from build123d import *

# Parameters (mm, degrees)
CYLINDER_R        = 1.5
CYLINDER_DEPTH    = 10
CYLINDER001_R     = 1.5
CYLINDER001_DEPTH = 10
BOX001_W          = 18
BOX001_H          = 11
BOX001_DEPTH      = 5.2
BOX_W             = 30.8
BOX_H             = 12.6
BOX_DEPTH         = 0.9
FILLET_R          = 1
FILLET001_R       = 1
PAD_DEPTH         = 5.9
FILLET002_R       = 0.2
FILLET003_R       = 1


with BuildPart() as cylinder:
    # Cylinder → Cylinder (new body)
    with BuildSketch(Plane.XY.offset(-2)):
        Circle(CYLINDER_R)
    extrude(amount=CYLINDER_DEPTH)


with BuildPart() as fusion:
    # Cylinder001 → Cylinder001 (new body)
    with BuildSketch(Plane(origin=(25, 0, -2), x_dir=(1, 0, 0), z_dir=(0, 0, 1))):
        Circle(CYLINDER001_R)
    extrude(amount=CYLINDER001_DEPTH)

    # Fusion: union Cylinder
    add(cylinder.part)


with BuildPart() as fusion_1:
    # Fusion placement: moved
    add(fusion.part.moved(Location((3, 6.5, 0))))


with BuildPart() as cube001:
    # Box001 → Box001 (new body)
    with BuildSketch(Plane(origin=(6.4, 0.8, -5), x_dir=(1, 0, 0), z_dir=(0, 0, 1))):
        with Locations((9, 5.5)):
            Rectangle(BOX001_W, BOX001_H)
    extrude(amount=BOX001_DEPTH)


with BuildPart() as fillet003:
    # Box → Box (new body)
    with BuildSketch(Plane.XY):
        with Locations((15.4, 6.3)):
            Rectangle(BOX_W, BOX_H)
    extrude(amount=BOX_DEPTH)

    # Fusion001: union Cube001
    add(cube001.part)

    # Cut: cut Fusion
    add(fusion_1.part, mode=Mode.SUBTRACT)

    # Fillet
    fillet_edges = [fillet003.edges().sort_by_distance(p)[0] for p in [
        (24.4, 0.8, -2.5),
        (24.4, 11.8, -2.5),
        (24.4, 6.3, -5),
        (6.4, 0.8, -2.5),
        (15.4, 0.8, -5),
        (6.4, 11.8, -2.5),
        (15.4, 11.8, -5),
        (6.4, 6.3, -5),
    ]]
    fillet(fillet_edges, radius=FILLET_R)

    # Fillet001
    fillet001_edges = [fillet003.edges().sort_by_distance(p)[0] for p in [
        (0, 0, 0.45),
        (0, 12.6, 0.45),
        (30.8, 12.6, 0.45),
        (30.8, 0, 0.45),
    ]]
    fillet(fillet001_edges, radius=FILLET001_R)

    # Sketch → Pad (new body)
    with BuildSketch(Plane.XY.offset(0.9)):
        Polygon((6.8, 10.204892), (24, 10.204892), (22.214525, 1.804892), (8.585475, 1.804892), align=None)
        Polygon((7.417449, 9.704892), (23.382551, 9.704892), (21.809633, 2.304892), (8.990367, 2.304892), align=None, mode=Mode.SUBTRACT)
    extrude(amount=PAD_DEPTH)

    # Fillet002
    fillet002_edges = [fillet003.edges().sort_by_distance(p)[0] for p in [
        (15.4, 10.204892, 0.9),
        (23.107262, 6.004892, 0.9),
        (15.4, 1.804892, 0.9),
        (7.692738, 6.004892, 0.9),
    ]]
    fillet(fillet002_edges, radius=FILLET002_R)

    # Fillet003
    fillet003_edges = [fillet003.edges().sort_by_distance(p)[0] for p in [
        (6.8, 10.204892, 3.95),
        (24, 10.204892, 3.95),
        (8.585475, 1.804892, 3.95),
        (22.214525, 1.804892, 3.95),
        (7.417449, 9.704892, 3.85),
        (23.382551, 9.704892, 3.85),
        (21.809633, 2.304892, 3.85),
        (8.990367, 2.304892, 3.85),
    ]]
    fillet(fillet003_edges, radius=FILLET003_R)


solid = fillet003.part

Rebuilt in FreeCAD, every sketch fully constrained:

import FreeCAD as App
import Part
import Sketcher

V = App.Vector
Q = App.Units.Quantity


def edges_at(feature, points):
    """Names of the edges that pass closest to the given points."""
    edges = feature.Shape.Edges
    near = lambda p: min(range(len(edges)), key=lambda i: edges[i].distToShape(Part.Vertex(*p))[0])
    return sorted({f"Edge{near(p) + 1}" for p in points})


def add_polygon(sketch, points):
    """Adds a closed chain of lines whose ends are joined by coincident constraints."""
    first, n = sketch.GeometryCount, len(points)
    for a, b in zip(points, points[1:] + points[:1]):
        sketch.addGeometry(Part.LineSegment(App.Vector(*a, 0), App.Vector(*b, 0)), False)
    for i in range(n):
        sketch.addConstraint(Sketcher.Constraint("Coincident", first + i, 2, first + (i + 1) % n, 1))

doc = App.newDocument("Part")
body = doc.addObject("PartDesign::Body", "Body")

sketch1 = body.newObject("Sketcher::SketchObject", "Sketch")
sketch1.AttachmentSupport = (doc.getObject("XY_Plane"), [""])
sketch1.MapMode = "FlatFace"
sketch1.AttachmentOffset = App.Placement(V(0, 0, -2), App.Rotation())
sketch1.addGeometry(Part.Circle(V(0, 0, 0), V(0, 0, 1), 1.5), False)
sketch1.addConstraint(Sketcher.Constraint("Coincident", 0, 3, -1, 1))
sketch1.addConstraint(Sketcher.Constraint("Diameter", 0, Q("3 mm")))
pad1 = body.newObject("PartDesign::Pad", "Pad")
pad1.Profile = sketch1
pad1.Length = 10
body2 = doc.addObject("PartDesign::Body", "Body001")
body2.AllowCompound = True

sketch2 = body2.newObject("Sketcher::SketchObject", "Sketch001")
sketch2.AttachmentSupport = (doc.getObject("XY_Plane001"), [""])
sketch2.MapMode = "FlatFace"
sketch2.AttachmentOffset = App.Placement(V(0, 0, -2), App.Rotation())
sketch2.addGeometry(Part.Circle(V(25, 0, 0), V(0, 0, 1), 1.5), False)
sketch2.addConstraint(Sketcher.Constraint("PointOnObject", 0, 3, -1))
sketch2.addConstraint(Sketcher.Constraint("Diameter", 0, Q("3 mm")))
sketch2.addConstraint(Sketcher.Constraint("DistanceX", -1, 1, 0, 3, Q("25 mm")))
pad2 = body2.newObject("PartDesign::Pad", "Pad001")
pad2.Profile = sketch2
pad2.Length = 10
doc.recompute()

boolean = body2.newObject("PartDesign::Boolean", "Boolean")
boolean.Type = "Fuse"
boolean.addObjects([body])
body3 = doc.addObject("PartDesign::Body", "Body002")
body3.AllowCompound = True
doc.recompute()

body2.Placement = App.Placement(V(3, 6.5, 0), App.Rotation(V(0, 0, 1), 0))
boolean2 = body3.newObject("PartDesign::Boolean", "Boolean001")
boolean2.Type = "Fuse"
boolean2.addObjects([body2])
body4 = doc.addObject("PartDesign::Body", "Body003")

sketch3 = body4.newObject("Sketcher::SketchObject", "Sketch002")
sketch3.AttachmentSupport = (doc.getObject("XY_Plane003"), [""])
sketch3.MapMode = "FlatFace"
sketch3.AttachmentOffset = App.Placement(V(0, 0, -5), App.Rotation())
add_polygon(sketch3, [(6, 12), (6, 1), (24, 1), (24, 12)])
sketch3.addConstraint(Sketcher.Constraint("Vertical", 0))
sketch3.addConstraint(Sketcher.Constraint("Horizontal", 1))
sketch3.addConstraint(Sketcher.Constraint("Vertical", 2))
sketch3.addConstraint(Sketcher.Constraint("Horizontal", 3))
sketch3.addConstraint(Sketcher.Constraint("DistanceX", 1, 1, 1, 2, Q("18 mm")))
sketch3.addConstraint(Sketcher.Constraint("DistanceY", 0, 2, 0, 1, Q("11 mm")))
sketch3.addConstraint(Sketcher.Constraint("DistanceX", -1, 1, 0, 2, Q("6.4 mm")))
sketch3.addConstraint(Sketcher.Constraint("DistanceY", -1, 1, 0, 2, Q("0.8 mm")))
pad3 = body4.newObject("PartDesign::Pad", "Pad002")
pad3.Profile = sketch3
pad3.Length = 5.2
body5 = doc.addObject("PartDesign::Body", "Body004")

sketch4 = body5.newObject("Sketcher::SketchObject", "Sketch003")
sketch4.AttachmentSupport = (doc.getObject("XY_Plane004"), [""])
sketch4.MapMode = "FlatFace"
add_polygon(sketch4, [(0, 13), (0, 0), (31, 0), (31, 13)])
sketch4.addConstraint(Sketcher.Constraint("Vertical", 0))
sketch4.addConstraint(Sketcher.Constraint("Horizontal", 1))
sketch4.addConstraint(Sketcher.Constraint("Vertical", 2))
sketch4.addConstraint(Sketcher.Constraint("Horizontal", 3))
sketch4.addConstraint(Sketcher.Constraint("Coincident", 0, 2, -1, 1))
sketch4.addConstraint(Sketcher.Constraint("DistanceX", 1, 1, 1, 2, Q("30.8 mm")))
sketch4.addConstraint(Sketcher.Constraint("DistanceY", 0, 2, 0, 1, Q("12.6 mm")))
pad4 = body5.newObject("PartDesign::Pad", "Pad003")
pad4.Profile = sketch4
pad4.Length = 0.9
doc.recompute()

boolean3 = body5.newObject("PartDesign::Boolean", "Boolean002")
boolean3.Type = "Fuse"
boolean3.addObjects([body4])
doc.recompute()

boolean4 = body5.newObject("PartDesign::Boolean", "Boolean003")
boolean4.Type = "Cut"
boolean4.addObjects([body3])
doc.recompute()

fillet = body5.newObject("PartDesign::Fillet", "Fillet")
fillet.Base = (boolean4, edges_at(boolean4, [
    (24.4, 0.8, -2.5),
    (24.4, 11.8, -2.5),
    (24.4, 6.3, -5),
    (6.4, 0.8, -2.5),
    (15.4, 0.8, -5),
    (6.4, 11.8, -2.5),
    (15.4, 11.8, -5),
    (6.4, 6.3, -5),
]))
fillet.Radius = 1
doc.recompute()

fillet2 = body5.newObject("PartDesign::Fillet", "Fillet001")
fillet2.Base = (fillet, edges_at(fillet, [
    (0, 0, 0.45),
    (0, 12.6, 0.45),
    (30.8, 12.6, 0.45),
    (30.8, 0, 0.45),
]))
fillet2.Radius = 1

sketch5 = body5.newObject("Sketcher::SketchObject", "Sketch004")
sketch5.AttachmentSupport = (doc.getObject("XY_Plane004"), [""])
sketch5.MapMode = "FlatFace"
sketch5.AttachmentOffset = App.Placement(V(0, 0, 0.9), App.Rotation())
add_polygon(sketch5, [(24, 10), (7, 10), (9, 2), (22, 2)])
add_polygon(sketch5, [(7, 10), (23, 10), (22, 2), (9, 2)])
sketch5.addConstraint(Sketcher.Constraint("Horizontal", 0))
sketch5.addConstraint(Sketcher.Constraint("Horizontal", 2))
sketch5.addConstraint(Sketcher.Constraint("Horizontal", 4))
sketch5.addConstraint(Sketcher.Constraint("Horizontal", 6))
sketch5.addConstraint(Sketcher.Constraint("Parallel", 3, 5))
sketch5.addConstraint(Sketcher.Constraint("Parallel", 1, 7))
sketch5.addConstraint(Sketcher.Constraint("Equal", 1, 3))
sketch5.addConstraint(Sketcher.Constraint("Angle", 1, Q("-78.000001 deg")))
sketch5.addConstraint(Sketcher.Constraint("DistanceX", 0, 2, 0, 1, Q("17.2 mm")))
sketch5.addConstraint(Sketcher.Constraint("DistanceX", -1, 1, 3, 2, Q("24 mm")))
sketch5.addConstraint(Sketcher.Constraint("DistanceY", 1, 2, 0, 2, Q("8.4 mm")))
sketch5.addConstraint(Sketcher.Constraint("DistanceY", 4, 2, 3, 2, Q("0.5 mm")))
sketch5.addConstraint(Sketcher.Constraint("DistanceY", 2, 2, 5, 2, Q("0.5 mm")))
sketch5.addConstraint(Sketcher.Constraint("DistanceX", 4, 1, 4, 2, Q("15.965102 mm")))
sketch5.addConstraint(Sketcher.Constraint("DistanceY", -1, 1, 0, 2, Q("10.204892 mm")))
sketch5.addConstraint(Sketcher.Constraint("DistanceX", -1, 1, 4, 2, Q("23.382551 mm")))
pad5 = body5.newObject("PartDesign::Pad", "Pad004")
pad5.Profile = sketch5
pad5.Length = 5.9
doc.recompute()

fillet3 = body5.newObject("PartDesign::Fillet", "Fillet002")
fillet3.Base = (pad5, edges_at(pad5, [
    (15.4, 10.205, 0.9),
    (23.107, 6.005, 0.9),
    (15.4, 1.805, 0.9),
    (7.693, 6.005, 0.9),
]))
fillet3.Radius = 0.2
doc.recompute()

fillet4 = body5.newObject("PartDesign::Fillet", "Fillet003")
fillet4.Base = (fillet3, edges_at(fillet3, [
    (6.8, 10.205, 3.95),
    (24, 10.205, 3.95),
    (8.585, 1.805, 3.95),
    (22.215, 1.805, 3.95),
    (7.417, 9.705, 3.85),
    (23.383, 9.705, 3.85),
    (21.81, 2.305, 3.85),
    (8.99, 2.305, 3.85),
]))
fillet4.Radius = 1

doc.recompute()
